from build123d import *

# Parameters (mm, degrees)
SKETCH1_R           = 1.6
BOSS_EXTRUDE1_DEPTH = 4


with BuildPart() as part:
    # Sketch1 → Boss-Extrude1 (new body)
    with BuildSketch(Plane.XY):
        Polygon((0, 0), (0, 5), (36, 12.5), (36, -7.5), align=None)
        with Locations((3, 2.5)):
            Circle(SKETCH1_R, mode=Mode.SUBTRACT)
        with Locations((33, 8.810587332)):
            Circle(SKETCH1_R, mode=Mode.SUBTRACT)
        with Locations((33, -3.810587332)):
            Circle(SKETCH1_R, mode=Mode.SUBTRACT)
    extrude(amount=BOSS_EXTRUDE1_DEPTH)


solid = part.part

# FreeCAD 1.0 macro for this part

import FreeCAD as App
import Part
import Sketcher

doc = App.newDocument("Part")
params = doc.addObject("Spreadsheet::Sheet", "Params")
for row, (alias, value) in enumerate([
    ("sketch1_diameter", "3.2 mm"),
    ("sketch1_height", "5 mm"),
    ("sketch1_height2", "20 mm"),
    ("pad1_length", "4 mm"),
], start=1):
    params.set(f"A{row}", alias)
    params.set(f"B{row}", "=" + value)
    params.setAlias(f"B{row}", alias)

body = doc.addObject("PartDesign::Body", "Body")

sketch1 = doc.addObject("Sketcher::SketchObject", "Sketch")
body.addObject(sketch1)
sketch1.AttachmentSupport = (doc.XY_Plane, [""])
sketch1.MapMode = "FlatFace"
sketch1.addGeometry([
    Part.LineSegment(App.Vector(0, 5, 0), App.Vector(0, 0, 0)),
    Part.LineSegment(App.Vector(0, 0, 0), App.Vector(36, -7.5, 0)),
    Part.LineSegment(App.Vector(36, -7.5, 0), App.Vector(36, 12.5, 0)),
    Part.LineSegment(App.Vector(36, 12.5, 0), App.Vector(0, 5, 0)),
    Part.Circle(App.Vector(33, -3.810587, 0), App.Vector(0, 0, 1), 1.6),
    Part.Circle(App.Vector(3, 2.5, 0), App.Vector(0, 0, 1), 1.6),
    Part.Circle(App.Vector(33, 8.810587, 0), App.Vector(0, 0, 1), 1.6),
], False)
sketch1.addConstraint([
    Sketcher.Constraint("Coincident", 0, 2, 1, 1),
    Sketcher.Constraint("Coincident", 1, 2, 2, 1),
    Sketcher.Constraint("Coincident", 2, 2, 3, 1),
    Sketcher.Constraint("Coincident", 3, 2, 0, 1),
    Sketcher.Constraint("Vertical", 0),
    Sketcher.Constraint("Vertical", 2),
    Sketcher.Constraint("Coincident", 0, 2, -1, 1),
    Sketcher.Constraint("Equal", 4, 5),
    Sketcher.Constraint("Equal", 5, 6),
    Sketcher.Constraint("Vertical", 4, 3, 6, 3),
    Sketcher.Constraint("Equal", 1, 3),
    Sketcher.Constraint("Diameter", 4, 3.2),
    Sketcher.Constraint("DistanceY", 0, 2, 0, 1, 5.0),
    Sketcher.Constraint("DistanceY", 2, 1, 2, 2, 20.0),
    Sketcher.Constraint("DistanceX", -1, 1, 4, 3, 33.0),
    Sketcher.Constraint("DistanceX", -1, 1, 5, 3, 3.0),
    Sketcher.Constraint("DistanceX", -1, 1, 1, 2, 36.0),
    Sketcher.Constraint("DistanceY", 1, 2, 5, 3, 10.0),
    Sketcher.Constraint("DistanceY", 4, 3, -1, 1, 3.810587),
    Sketcher.Constraint("DistanceY", -1, 1, 6, 3, 8.810587),
])
sketch1.setExpression("Constraints[11]", "Params.sketch1_diameter")
sketch1.setExpression("Constraints[12]", "Params.sketch1_height")
sketch1.setExpression("Constraints[13]", "Params.sketch1_height2")
pad1 = doc.addObject("PartDesign::Pad", "Pad")
body.addObject(pad1)
pad1.Profile = sketch1
pad1.setExpression("Length", "Params.pad1_length")

doc.recompute()
